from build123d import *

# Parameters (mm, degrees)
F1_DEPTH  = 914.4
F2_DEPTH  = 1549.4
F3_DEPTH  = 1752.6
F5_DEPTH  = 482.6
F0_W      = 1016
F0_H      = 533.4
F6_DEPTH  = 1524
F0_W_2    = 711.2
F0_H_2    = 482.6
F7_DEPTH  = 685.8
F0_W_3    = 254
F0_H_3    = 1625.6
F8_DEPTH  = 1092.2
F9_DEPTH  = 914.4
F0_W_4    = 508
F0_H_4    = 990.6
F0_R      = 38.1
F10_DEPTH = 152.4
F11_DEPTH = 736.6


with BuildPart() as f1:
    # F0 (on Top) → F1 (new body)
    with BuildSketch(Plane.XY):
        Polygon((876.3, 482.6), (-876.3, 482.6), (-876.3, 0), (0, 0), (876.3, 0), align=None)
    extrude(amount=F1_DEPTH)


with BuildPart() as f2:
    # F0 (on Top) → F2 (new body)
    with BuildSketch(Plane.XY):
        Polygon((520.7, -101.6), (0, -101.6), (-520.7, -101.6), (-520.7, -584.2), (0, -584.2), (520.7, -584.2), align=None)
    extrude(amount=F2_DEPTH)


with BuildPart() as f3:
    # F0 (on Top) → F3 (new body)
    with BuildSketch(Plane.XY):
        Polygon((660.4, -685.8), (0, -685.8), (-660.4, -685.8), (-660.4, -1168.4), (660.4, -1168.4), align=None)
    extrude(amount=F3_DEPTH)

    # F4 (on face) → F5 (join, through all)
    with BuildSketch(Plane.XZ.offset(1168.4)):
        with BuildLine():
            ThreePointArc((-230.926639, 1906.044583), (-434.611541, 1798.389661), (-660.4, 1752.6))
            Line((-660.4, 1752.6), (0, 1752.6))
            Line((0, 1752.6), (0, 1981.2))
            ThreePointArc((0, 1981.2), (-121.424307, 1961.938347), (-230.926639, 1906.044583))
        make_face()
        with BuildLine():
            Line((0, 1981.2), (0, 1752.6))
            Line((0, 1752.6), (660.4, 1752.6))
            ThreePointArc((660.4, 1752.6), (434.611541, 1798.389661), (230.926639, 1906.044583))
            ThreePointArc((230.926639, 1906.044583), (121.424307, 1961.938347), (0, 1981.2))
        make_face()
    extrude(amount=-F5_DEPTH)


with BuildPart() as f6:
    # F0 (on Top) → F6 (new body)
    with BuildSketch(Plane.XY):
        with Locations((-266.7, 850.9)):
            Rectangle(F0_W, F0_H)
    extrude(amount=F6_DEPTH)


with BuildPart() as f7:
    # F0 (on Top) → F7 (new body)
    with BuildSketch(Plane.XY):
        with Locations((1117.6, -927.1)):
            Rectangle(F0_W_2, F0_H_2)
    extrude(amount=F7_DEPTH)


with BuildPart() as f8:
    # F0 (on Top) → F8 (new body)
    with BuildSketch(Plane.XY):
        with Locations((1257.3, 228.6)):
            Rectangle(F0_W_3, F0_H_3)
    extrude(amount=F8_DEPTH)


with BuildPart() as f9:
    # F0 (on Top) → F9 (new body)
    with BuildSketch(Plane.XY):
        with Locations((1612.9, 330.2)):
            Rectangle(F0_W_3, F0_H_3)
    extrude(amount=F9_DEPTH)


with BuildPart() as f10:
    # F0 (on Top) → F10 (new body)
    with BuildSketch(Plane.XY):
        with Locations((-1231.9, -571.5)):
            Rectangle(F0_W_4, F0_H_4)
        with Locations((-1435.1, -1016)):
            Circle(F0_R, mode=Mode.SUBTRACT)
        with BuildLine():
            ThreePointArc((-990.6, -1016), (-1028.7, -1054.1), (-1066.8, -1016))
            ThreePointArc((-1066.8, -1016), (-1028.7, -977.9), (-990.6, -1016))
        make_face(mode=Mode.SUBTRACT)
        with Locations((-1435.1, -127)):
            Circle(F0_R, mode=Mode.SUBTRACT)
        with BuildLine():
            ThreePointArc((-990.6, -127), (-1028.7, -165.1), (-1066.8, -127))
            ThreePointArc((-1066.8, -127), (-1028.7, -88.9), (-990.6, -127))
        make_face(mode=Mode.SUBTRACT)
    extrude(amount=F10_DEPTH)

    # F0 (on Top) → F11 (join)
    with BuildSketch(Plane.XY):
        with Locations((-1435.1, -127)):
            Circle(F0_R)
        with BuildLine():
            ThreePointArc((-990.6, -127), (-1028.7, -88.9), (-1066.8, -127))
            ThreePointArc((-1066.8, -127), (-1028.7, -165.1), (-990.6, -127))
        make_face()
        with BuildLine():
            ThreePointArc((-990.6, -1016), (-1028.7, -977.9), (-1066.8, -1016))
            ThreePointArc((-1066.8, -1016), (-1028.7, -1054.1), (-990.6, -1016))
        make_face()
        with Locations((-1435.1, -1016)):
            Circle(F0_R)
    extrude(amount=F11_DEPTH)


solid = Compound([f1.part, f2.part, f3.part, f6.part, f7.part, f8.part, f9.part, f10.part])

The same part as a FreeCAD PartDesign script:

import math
import FreeCAD as App
import Part
import Sketcher
Q = App.Units.Quantity

doc = App.newDocument("Part")
params = doc.addObject("Spreadsheet::Sheet", "Params")
for row, (alias, value) in enumerate([
    ("sketch1_width", "69 in"),
    ("sketch1_height", "19 in"),
    ("pad1_length", "36 in"),
    ("sketch2_width", "41 in"),
    ("sketch2_height", "19 in"),
    ("pad2_length", "61 in"),
    ("sketch3_width", "52 in"),
    ("sketch3_height", "19 in"),
    ("pad3_length", "69 in"),
    ("sketch4_width", "52 in"),
    ("pad4_length", "19 in"),
    ("sketch5_width", "40 in"),
    ("sketch5_height", "21 in"),
    ("pad5_length", "60 in"),
    ("sketch6_width", "28 in"),
    ("sketch6_height", "19 in"),
    ("pad6_length", "27 in"),
    ("sketch7_width", "10 in"),
    ("sketch7_height", "64 in"),
    ("pad7_length", "43 in"),
    ("sketch8_width", "10 in"),
    ("sketch8_height", "64 in"),
    ("pad8_length", "36 in"),
    ("sketch9_diameter", "3 in"),
    ("sketch9_width", "20 in"),
    ("sketch9_height", "39 in"),
    ("pad9_length", "6 in"),
    ("sketch10_diameter", "3 in"),
    ("pad10_length", "29 in"),
], start=1):
    params.set(f"A{row}", alias)
    params.set(f"B{row}", "=" + value)
    params.setAlias(f"B{row}", alias)

body = doc.addObject("PartDesign::Body", "Body")

# Sketch on XY plane
sketch1 = doc.addObject("Sketcher::SketchObject", "Sketch")
body.addObject(sketch1)
sketch1.AttachmentSupport = (doc.XY_Plane, [""])
sketch1.MapMode = "FlatFace"
sketch1.addGeometry(Part.LineSegment(App.Vector(876, 483, 0), App.Vector(-876, 483, 0)), False)
sketch1.addGeometry(Part.LineSegment(App.Vector(-876, 483, 0), App.Vector(-876, 0, 0)), False)
sketch1.addGeometry(Part.LineSegment(App.Vector(-876, 0, 0), App.Vector(876, 0, 0)), False)
sketch1.addGeometry(Part.LineSegment(App.Vector(876, 0, 0), App.Vector(876, 483, 0)), False)
sketch1.addConstraint(Sketcher.Constraint("Coincident", 0, 2, 1, 1))
sketch1.addConstraint(Sketcher.Constraint("Coincident", 1, 2, 2, 1))
sketch1.addConstraint(Sketcher.Constraint("Coincident", 2, 2, 3, 1))
sketch1.addConstraint(Sketcher.Constraint("Coincident", 3, 2, 0, 1))
sketch1.addConstraint(Sketcher.Constraint("Horizontal", 0))
sketch1.addConstraint(Sketcher.Constraint("Vertical", 1))
sketch1.addConstraint(Sketcher.Constraint("Horizontal", 2))
sketch1.addConstraint(Sketcher.Constraint("Vertical", 3))
sketch1.addConstraint(Sketcher.Constraint("Symmetric", 1, 2, 2, 2, -1, 1))
sketch1.addConstraint(Sketcher.Constraint("DistanceX", 0, 2, 0, 1, Q("69 in")))
sketch1.addConstraint(Sketcher.Constraint("DistanceY", 1, 2, 1, 1, Q("19 in")))
sketch1.setExpression("Constraints[9]", "Params.sketch1_width")
sketch1.setExpression("Constraints[10]", "Params.sketch1_height")
pad1 = doc.addObject("PartDesign::Pad", "Pad")
body.addObject(pad1)
pad1.Profile = sketch1
pad1.setExpression("Length", "Params.pad1_length")
body2 = doc.addObject("PartDesign::Body", "Body001")

# Sketch on XY plane
sketch2 = doc.addObject("Sketcher::SketchObject", "Sketch001")
body2.addObject(sketch2)
sketch2.AttachmentSupport = (doc.getObject("XY_Plane001"), [""])
sketch2.MapMode = "FlatFace"
sketch2.addGeometry(Part.LineSegment(App.Vector(521, -102, 0), App.Vector(-521, -102, 0)), False)
sketch2.addGeometry(Part.LineSegment(App.Vector(-521, -102, 0), App.Vector(-521, -584, 0)), False)
sketch2.addGeometry(Part.LineSegment(App.Vector(-521, -584, 0), App.Vector(521, -584, 0)), False)
sketch2.addGeometry(Part.LineSegment(App.Vector(521, -584, 0), App.Vector(521, -102, 0)), False)
sketch2.addConstraint(Sketcher.Constraint("Coincident", 0, 2, 1, 1))
sketch2.addConstraint(Sketcher.Constraint("Coincident", 1, 2, 2, 1))
sketch2.addConstraint(Sketcher.Constraint("Coincident", 2, 2, 3, 1))
sketch2.addConstraint(Sketcher.Constraint("Coincident", 3, 2, 0, 1))
sketch2.addConstraint(Sketcher.Constraint("Horizontal", 0))
sketch2.addConstraint(Sketcher.Constraint("Vertical", 1))
sketch2.addConstraint(Sketcher.Constraint("Horizontal", 2))
sketch2.addConstraint(Sketcher.Constraint("Vertical", 3))
sketch2.addConstraint(Sketcher.Constraint("DistanceX", 0, 2, 0, 1, Q("41 in")))
sketch2.addConstraint(Sketcher.Constraint("DistanceY", 1, 2, 1, 1, Q("19 in")))
sketch2.addConstraint(Sketcher.Constraint("DistanceY", 0, 2, -1, 1, Q("4 in")))
sketch2.addConstraint(Sketcher.Constraint("DistanceX", 0, 2, -1, 1, Q("20.5 in")))
sketch2.setExpression("Constraints[8]", "Params.sketch2_width")
sketch2.setExpression("Constraints[9]", "Params.sketch2_height")
pad2 = doc.addObject("PartDesign::Pad", "Pad001")
body2.addObject(pad2)
pad2.Profile = sketch2
pad2.setExpression("Length", "Params.pad2_length")
body3 = doc.addObject("PartDesign::Body", "Body002")

# Sketch on XY plane
sketch3 = doc.addObject("Sketcher::SketchObject", "Sketch002")
body3.addObject(sketch3)
sketch3.AttachmentSupport = (doc.getObject("XY_Plane002"), [""])
sketch3.MapMode = "FlatFace"
sketch3.addGeometry(Part.LineSegment(App.Vector(660, -686, 0), App.Vector(-660, -686, 0)), False)
sketch3.addGeometry(Part.LineSegment(App.Vector(-660, -686, 0), App.Vector(-660, -1168, 0)), False)
sketch3.addGeometry(Part.LineSegment(App.Vector(-660, -1168, 0), App.Vector(660, -1168, 0)), False)
sketch3.addGeometry(Part.LineSegment(App.Vector(660, -1168, 0), App.Vector(660, -686, 0)), False)
sketch3.addConstraint(Sketcher.Constraint("Coincident", 0, 2, 1, 1))
sketch3.addConstraint(Sketcher.Constraint("Coincident", 1, 2, 2, 1))
sketch3.addConstraint(Sketcher.Constraint("Coincident", 2, 2, 3, 1))
sketch3.addConstraint(Sketcher.Constraint("Coincident", 3, 2, 0, 1))
sketch3.addConstraint(Sketcher.Constraint("Horizontal", 0))
sketch3.addConstraint(Sketcher.Constraint("Vertical", 1))
sketch3.addConstraint(Sketcher.Constraint("Horizontal", 2))
sketch3.addConstraint(Sketcher.Constraint("Vertical", 3))
sketch3.addConstraint(Sketcher.Constraint("DistanceX", 0, 2, 0, 1, Q("52 in")))
sketch3.addConstraint(Sketcher.Constraint("DistanceY", 1, 2, 1, 1, Q("19 in")))
sketch3.addConstraint(Sketcher.Constraint("DistanceX", 0, 2, -1, 1, Q("26 in")))
sketch3.addConstraint(Sketcher.Constraint("DistanceY", 0, 2, -1, 1, Q("27 in")))
sketch3.setExpression("Constraints[8]", "Params.sketch3_width")
sketch3.setExpression("Constraints[9]", "Params.sketch3_height")
pad3 = doc.addObject("PartDesign::Pad", "Pad002")
body3.addObject(pad3)
pad3.Profile = sketch3
pad3.setExpression("Length", "Params.pad3_length")

# Sketch on XZ plane
sketch4 = doc.addObject("Sketcher::SketchObject", "Sketch003")
body3.addObject(sketch4)
sketch4.AttachmentSupport = (doc.getObject("XZ_Plane002"), [""])
sketch4.MapMode = "FlatFace"
sketch4.AttachmentOffset = App.Placement(App.Vector(0, 0, 46 * 25.4), App.Rotation())
sketch4.addGeometry(Part.ArcOfCircle(Part.Circle(App.Vector(-706, 2559, 0), App.Vector(0, 0, 1), 808), math.radians(-87), math.radians(-54)), False)
sketch4.addGeometry(Part.LineSegment(App.Vector(-660, 1753, 0), App.Vector(660, 1753, 0)), False)
sketch4.addGeometry(Part.ArcOfCircle(Part.Circle(App.Vector(706, 2559, 0), App.Vector(0, 0, 1), 808), math.radians(-126), math.radians(-93)), False)
sketch4.addGeometry(Part.ArcOfCircle(Part.Circle(App.Vector(0, 1589, 0), App.Vector(0, 0, 1), 392), math.radians(54), math.radians(90)), False)
sketch4.addGeometry(Part.ArcOfCircle(Part.Circle(App.Vector(0, 1589, 0), App.Vector(0, 0, 1), 392), math.radians(90), math.radians(126)), False)
sketch4.addConstraint(Sketcher.Constraint("Coincident", 0, 1, 1, 1))
sketch4.addConstraint(Sketcher.Constraint("Coincident", 1, 2, 2, 2))
sketch4.addConstraint(Sketcher.Constraint("Tangent", 2, 1, 3, 1))
sketch4.addConstraint(Sketcher.Constraint("Tangent", 3, 2, 4, 1))
sketch4.addConstraint(Sketcher.Constraint("Tangent", 4, 2, 0, 2))
sketch4.addConstraint(Sketcher.Constraint("Horizontal", 1))
sketch4.addConstraint(Sketcher.Constraint("Equal", 0, 2))
sketch4.addConstraint(Sketcher.Constraint("Equal", 3, 4))
sketch4.addConstraint(Sketcher.Constraint("Symmetric", 0, 3, 2, 3, -2))
sketch4.addConstraint(Sketcher.Constraint("PointOnObject", 3, 2, -2))
sketch4.addConstraint(Sketcher.Constraint("DistanceX", 1, 1, 1, 2, Q("52 in")))
sketch4.addConstraint(Sketcher.Constraint("DistanceY", -1, 1, 0, 1, Q("69 in")))
sketch4.addConstraint(Sketcher.Constraint("DistanceY", -1, 1, 3, 2, Q("78 in")))
sketch4.addConstraint(Sketcher.Constraint("Radius", 0, 807.92825))
sketch4.addConstraint(Sketcher.Constraint("Radius", 3, 392.356614))
sketch4.setExpression("Constraints[10]", "Params.sketch4_width")
pad4 = doc.addObject("PartDesign::Pad", "Pad003")
body3.addObject(pad4)
pad4.Profile = sketch4
pad4.setExpression("Length", "Params.pad4_length")
pad4.Reversed = True
body4 = doc.addObject("PartDesign::Body", "Body003")

# Sketch on XY plane
sketch5 = doc.addObject("Sketcher::SketchObject", "Sketch004")
body4.addObject(sketch5)
sketch5.AttachmentSupport = (doc.getObject("XY_Plane003"), [""])
sketch5.MapMode = "FlatFace"
sketch5.addGeometry(Part.LineSegment(App.Vector(-775, 1118, 0), App.Vector(-775, 584, 0)), False)
sketch5.addGeometry(Part.LineSegment(App.Vector(-775, 584, 0), App.Vector(241, 584, 0)), False)
sketch5.addGeometry(Part.LineSegment(App.Vector(241, 584, 0), App.Vector(241, 1118, 0)), False)
sketch5.addGeometry(Part.LineSegment(App.Vector(241, 1118, 0), App.Vector(-775, 1118, 0)), False)
sketch5.addConstraint(Sketcher.Constraint("Coincident", 0, 2, 1, 1))
sketch5.addConstraint(Sketcher.Constraint("Coincident", 1, 2, 2, 1))
sketch5.addConstraint(Sketcher.Constraint("Coincident", 2, 2, 3, 1))
sketch5.addConstraint(Sketcher.Constraint("Coincident", 3, 2, 0, 1))
sketch5.addConstraint(Sketcher.Constraint("Vertical", 0))
sketch5.addConstraint(Sketcher.Constraint("Horizontal", 1))
sketch5.addConstraint(Sketcher.Constraint("Vertical", 2))
sketch5.addConstraint(Sketcher.Constraint("Horizontal", 3))
sketch5.addConstraint(Sketcher.Constraint("DistanceX", 1, 1, 1, 2, Q("40 in")))
sketch5.addConstraint(Sketcher.Constraint("DistanceY", 0, 2, 0, 1, Q("21 in")))
sketch5.addConstraint(Sketcher.Constraint("DistanceY", -1, 1, 0, 2, Q("23 in")))
sketch5.addConstraint(Sketcher.Constraint("DistanceX", 0, 2, -1, 1, Q("30.5 in")))
sketch5.setExpression("Constraints[8]", "Params.sketch5_width")
sketch5.setExpression("Constraints[9]", "Params.sketch5_height")
pad5 = doc.addObject("PartDesign::Pad", "Pad004")
body4.addObject(pad5)
pad5.Profile = sketch5
pad5.setExpression("Length", "Params.pad5_length")
body5 = doc.addObject("PartDesign::Body", "Body004")

# Sketch on XY plane
sketch6 = doc.addObject("Sketcher::SketchObject", "Sketch005")
body5.addObject(sketch6)
sketch6.AttachmentSupport = (doc.getObject("XY_Plane004"), [""])
sketch6.MapMode = "FlatFace"
sketch6.addGeometry(Part.LineSegment(App.Vector(762, -686, 0), App.Vector(762, -1168, 0)), False)
sketch6.addGeometry(Part.LineSegment(App.Vector(762, -1168, 0), App.Vector(1473, -1168, 0)), False)
sketch6.addGeometry(Part.LineSegment(App.Vector(1473, -1168, 0), App.Vector(1473, -686, 0)), False)
sketch6.addGeometry(Part.LineSegment(App.Vector(1473, -686, 0), App.Vector(762, -686, 0)), False)
sketch6.addConstraint(Sketcher.Constraint("Coincident", 0, 2, 1, 1))
sketch6.addConstraint(Sketcher.Constraint("Coincident", 1, 2, 2, 1))
sketch6.addConstraint(Sketcher.Constraint("Coincident", 2, 2, 3, 1))
sketch6.addConstraint(Sketcher.Constraint("Coincident", 3, 2, 0, 1))
sketch6.addConstraint(Sketcher.Constraint("Vertical", 0))
sketch6.addConstraint(Sketcher.Constraint("Horizontal", 1))
sketch6.addConstraint(Sketcher.Constraint("Vertical", 2))
sketch6.addConstraint(Sketcher.Constraint("Horizontal", 3))
sketch6.addConstraint(Sketcher.Constraint("DistanceX", 1, 1, 1, 2, Q("28 in")))
sketch6.addConstraint(Sketcher.Constraint("DistanceY", 0, 2, 0, 1, Q("19 in")))
sketch6.addConstraint(Sketcher.Constraint("DistanceX", -1, 1, 0, 2, Q("30 in")))
sketch6.addConstraint(Sketcher.Constraint("DistanceY", 0, 2, -1, 1, Q("46 in")))
sketch6.setExpression("Constraints[8]", "Params.sketch6_width")
sketch6.setExpression("Constraints[9]", "Params.sketch6_height")
pad6 = doc.addObject("PartDesign::Pad", "Pad005")
body5.addObject(pad6)
pad6.Profile = sketch6
pad6.setExpression("Length", "Params.pad6_length")
body6 = doc.addObject("PartDesign::Body", "Body005")

# Sketch on XY plane
sketch7 = doc.addObject("Sketcher::SketchObject", "Sketch006")
body6.addObject(sketch7)
sketch7.AttachmentSupport = (doc.getObject("XY_Plane005"), [""])
sketch7.MapMode = "FlatFace"
sketch7.addGeometry(Part.LineSegment(App.Vector(1130, 1041, 0), App.Vector(1130, -584, 0)), False)
sketch7.addGeometry(Part.LineSegment(App.Vector(1130, -584, 0), App.Vector(1384, -584, 0)), False)
sketch7.addGeometry(Part.LineSegment(App.Vector(1384, -584, 0), App.Vector(1384, 1041, 0)), False)
sketch7.addGeometry(Part.LineSegment(App.Vector(1384, 1041, 0), App.Vector(1130, 1041, 0)), False)
sketch7.addConstraint(Sketcher.Constraint("Coincident", 0, 2, 1, 1))
sketch7.addConstraint(Sketcher.Constraint("Coincident", 1, 2, 2, 1))
sketch7.addConstraint(Sketcher.Constraint("Coincident", 2, 2, 3, 1))
sketch7.addConstraint(Sketcher.Constraint("Coincident", 3, 2, 0, 1))
sketch7.addConstraint(Sketcher.Constraint("Vertical", 0))
sketch7.addConstraint(Sketcher.Constraint("Horizontal", 1))
sketch7.addConstraint(Sketcher.Constraint("Vertical", 2))
sketch7.addConstraint(Sketcher.Constraint("Horizontal", 3))
sketch7.addConstraint(Sketcher.Constraint("DistanceX", 1, 1, 1, 2, Q("10 in")))
sketch7.addConstraint(Sketcher.Constraint("DistanceY", 0, 2, 0, 1, Q("64 in")))
sketch7.addConstraint(Sketcher.Constraint("DistanceY", 0, 2, -1, 1, Q("23 in")))
sketch7.addConstraint(Sketcher.Constraint("DistanceX", -1, 1, 0, 2, Q("44.5 in")))
sketch7.setExpression("Constraints[8]", "Params.sketch7_width")
sketch7.setExpression("Constraints[9]", "Params.sketch7_height")
pad7 = doc.addObject("PartDesign::Pad", "Pad006")
body6.addObject(pad7)
pad7.Profile = sketch7
pad7.setExpression("Length", "Params.pad7_length")
body7 = doc.addObject("PartDesign::Body", "Body006")

# Sketch on XY plane
sketch8 = doc.addObject("Sketcher::SketchObject", "Sketch007")
body7.addObject(sketch8)
sketch8.AttachmentSupport = (doc.getObject("XY_Plane006"), [""])
sketch8.MapMode = "FlatFace"
sketch8.addGeometry(Part.LineSegment(App.Vector(1486, 1143, 0), App.Vector(1486, -483, 0)), False)
sketch8.addGeometry(Part.LineSegment(App.Vector(1486, -483, 0), App.Vector(1740, -483, 0)), False)
sketch8.addGeometry(Part.LineSegment(App.Vector(1740, -483, 0), App.Vector(1740, 1143, 0)), False)
sketch8.addGeometry(Part.LineSegment(App.Vector(1740, 1143, 0), App.Vector(1486, 1143, 0)), False)
sketch8.addConstraint(Sketcher.Constraint("Coincident", 0, 2, 1, 1))
sketch8.addConstraint(Sketcher.Constraint("Coincident", 1, 2, 2, 1))
sketch8.addConstraint(Sketcher.Constraint("Coincident", 2, 2, 3, 1))
sketch8.addConstraint(Sketcher.Constraint("Coincident", 3, 2, 0, 1))
sketch8.addConstraint(Sketcher.Constraint("Vertical", 0))
sketch8.addConstraint(Sketcher.Constraint("Horizontal", 1))
sketch8.addConstraint(Sketcher.Constraint("Vertical", 2))
sketch8.addConstraint(Sketcher.Constraint("Horizontal", 3))
sketch8.addConstraint(Sketcher.Constraint("DistanceX", 1, 1, 1, 2, Q("10 in")))
sketch8.addConstraint(Sketcher.Constraint("DistanceY", 0, 2, 0, 1, Q("64 in")))
sketch8.addConstraint(Sketcher.Constraint("DistanceY", 0, 2, -1, 1, Q("19 in")))
sketch8.addConstraint(Sketcher.Constraint("DistanceX", -1, 1, 0, 2, Q("58.5 in")))
sketch8.setExpression("Constraints[8]", "Params.sketch8_width")
sketch8.setExpression("Constraints[9]", "Params.sketch8_height")
pad8 = doc.addObject("PartDesign::Pad", "Pad007")
body7.addObject(pad8)
pad8.Profile = sketch8
pad8.setExpression("Length", "Params.pad8_length")
body8 = doc.addObject("PartDesign::Body", "Body007")

# Sketch on XY plane
sketch9 = doc.addObject("Sketcher::SketchObject", "Sketch008")
body8.addObject(sketch9)
sketch9.AttachmentSupport = (doc.getObject("XY_Plane007"), [""])
sketch9.MapMode = "FlatFace"
sketch9.addGeometry(Part.LineSegment(App.Vector(-1486, -76, 0), App.Vector(-1486, -1067, 0)), False)
sketch9.addGeometry(Part.LineSegment(App.Vector(-1486, -1067, 0), App.Vector(-978, -1067, 0)), False)
sketch9.addGeometry(Part.LineSegment(App.Vector(-978, -1067, 0), App.Vector(-978, -76, 0)), False)
sketch9.addGeometry(Part.LineSegment(App.Vector(-978, -76, 0), App.Vector(-1486, -76, 0)), False)
sketch9.addGeometry(Part.Circle(App.Vector(-1435, -1016, 0), App.Vector(0, 0, 1), 38), False)
sketch9.addGeometry(Part.Circle(App.Vector(-1029, -1016, 0), App.Vector(0, 0, 1), 38), False)
sketch9.addGeometry(Part.Circle(App.Vector(-1435, -127, 0), App.Vector(0, 0, 1), 38), False)
sketch9.addGeometry(Part.Circle(App.Vector(-1029, -127, 0), App.Vector(0, 0, 1), 38), False)
sketch9.addConstraint(Sketcher.Constraint("Coincident", 0, 2, 1, 1))
sketch9.addConstraint(Sketcher.Constraint("Coincident", 1, 2, 2, 1))
sketch9.addConstraint(Sketcher.Constraint("Coincident", 2, 2, 3, 1))
sketch9.addConstraint(Sketcher.Constraint("Coincident", 3, 2, 0, 1))
sketch9.addConstraint(Sketcher.Constraint("Vertical", 0))
sketch9.addConstraint(Sketcher.Constraint("Horizontal", 1))
sketch9.addConstraint(Sketcher.Constraint("Vertical", 2))
sketch9.addConstraint(Sketcher.Constraint("Horizontal", 3))
sketch9.addConstraint(Sketcher.Constraint("Equal", 4, 5))
sketch9.addConstraint(Sketcher.Constraint("Equal", 5, 6))
sketch9.addConstraint(Sketcher.Constraint("Equal", 6, 7))
sketch9.addConstraint(Sketcher.Constraint("Horizontal", 4, 3, 5, 3))
sketch9.addConstraint(Sketcher.Constraint("Horizontal", 6, 3, 7, 3))
sketch9.addConstraint(Sketcher.Constraint("Vertical", 4, 3, 6, 3))
sketch9.addConstraint(Sketcher.Constraint("Vertical", 5, 3, 7, 3))
sketch9.addConstraint(Sketcher.Constraint("Diameter", 4, Q("3 in")))
sketch9.addConstraint(Sketcher.Constraint("DistanceX", 1, 1, 1, 2, Q("20 in")))
sketch9.addConstraint(Sketcher.Constraint("DistanceY", 0, 2, 0, 1, Q("39 in")))
sketch9.addConstraint(Sketcher.Constraint("DistanceY", 4, 3, -1, 1, Q("40 in")))
sketch9.addConstraint(Sketcher.Constraint("DistanceY", 6, 3, -1, 1, Q("5 in")))
sketch9.addConstraint(Sketcher.Constraint("DistanceY", 0, 2, -1, 1, Q("42 in")))
sketch9.addConstraint(Sketcher.Constraint("DistanceX", 4, 3, 5, 3, Q("16 in")))
sketch9.addConstraint(Sketcher.Constraint("DistanceX", 0, 2, 4, 3, Q("2 in")))
sketch9.addConstraint(Sketcher.Constraint("DistanceX", 4, 3, -1, 1, Q("56.5 in")))
sketch9.setExpression("Constraints[15]", "Params.sketch9_diameter")
sketch9.setExpression("Constraints[16]", "Params.sketch9_width")
sketch9.setExpression("Constraints[17]", "Params.sketch9_height")
pad9 = doc.addObject("PartDesign::Pad", "Pad008")
body8.addObject(pad9)
pad9.Profile = sketch9
pad9.setExpression("Length", "Params.pad9_length")

# Sketch on XY plane
sketch10 = doc.addObject("Sketcher::SketchObject", "Sketch009")
body8.addObject(sketch10)
sketch10.AttachmentSupport = (doc.getObject("XY_Plane007"), [""])
sketch10.MapMode = "FlatFace"
sketch10.addGeometry(Part.Circle(App.Vector(-1435, -127, 0), App.Vector(0, 0, 1), 38), False)
sketch10.addGeometry(Part.Circle(App.Vector(-1029, -127, 0), App.Vector(0, 0, 1), 38), False)
sketch10.addGeometry(Part.Circle(App.Vector(-1029, -1016, 0), App.Vector(0, 0, 1), 38), False)
sketch10.addGeometry(Part.Circle(App.Vector(-1435, -1016, 0), App.Vector(0, 0, 1), 38), False)
sketch10.addConstraint(Sketcher.Constraint("Equal", 0, 1))
sketch10.addConstraint(Sketcher.Constraint("Equal", 1, 2))
sketch10.addConstraint(Sketcher.Constraint("Equal", 2, 3))
sketch10.addConstraint(Sketcher.Constraint("Horizontal", 0, 3, 1, 3))
sketch10.addConstraint(Sketcher.Constraint("Horizontal", 2, 3, 3, 3))
sketch10.addConstraint(Sketcher.Constraint("Vertical", 1, 3, 2, 3))
sketch10.addConstraint(Sketcher.Constraint("Vertical", 0, 3, 3, 3))
sketch10.addConstraint(Sketcher.Constraint("Diameter", 0, Q("3 in")))
sketch10.addConstraint(Sketcher.Constraint("DistanceY", 0, 3, -1, 1, Q("5 in")))
sketch10.addConstraint(Sketcher.Constraint("DistanceY", 2, 3, -1, 1, Q("40 in")))
sketch10.addConstraint(Sketcher.Constraint("DistanceX", 0, 3, 1, 3, Q("16 in")))
sketch10.addConstraint(Sketcher.Constraint("DistanceX", 0, 3, -1, 1, Q("56.5 in")))
sketch10.setExpression("Constraints[7]", "Params.sketch10_diameter")
pad10 = doc.addObject("PartDesign::Pad", "Pad009")
body8.addObject(pad10)
pad10.Profile = sketch10
pad10.setExpression("Length", "Params.pad10_length")

doc.recompute()
